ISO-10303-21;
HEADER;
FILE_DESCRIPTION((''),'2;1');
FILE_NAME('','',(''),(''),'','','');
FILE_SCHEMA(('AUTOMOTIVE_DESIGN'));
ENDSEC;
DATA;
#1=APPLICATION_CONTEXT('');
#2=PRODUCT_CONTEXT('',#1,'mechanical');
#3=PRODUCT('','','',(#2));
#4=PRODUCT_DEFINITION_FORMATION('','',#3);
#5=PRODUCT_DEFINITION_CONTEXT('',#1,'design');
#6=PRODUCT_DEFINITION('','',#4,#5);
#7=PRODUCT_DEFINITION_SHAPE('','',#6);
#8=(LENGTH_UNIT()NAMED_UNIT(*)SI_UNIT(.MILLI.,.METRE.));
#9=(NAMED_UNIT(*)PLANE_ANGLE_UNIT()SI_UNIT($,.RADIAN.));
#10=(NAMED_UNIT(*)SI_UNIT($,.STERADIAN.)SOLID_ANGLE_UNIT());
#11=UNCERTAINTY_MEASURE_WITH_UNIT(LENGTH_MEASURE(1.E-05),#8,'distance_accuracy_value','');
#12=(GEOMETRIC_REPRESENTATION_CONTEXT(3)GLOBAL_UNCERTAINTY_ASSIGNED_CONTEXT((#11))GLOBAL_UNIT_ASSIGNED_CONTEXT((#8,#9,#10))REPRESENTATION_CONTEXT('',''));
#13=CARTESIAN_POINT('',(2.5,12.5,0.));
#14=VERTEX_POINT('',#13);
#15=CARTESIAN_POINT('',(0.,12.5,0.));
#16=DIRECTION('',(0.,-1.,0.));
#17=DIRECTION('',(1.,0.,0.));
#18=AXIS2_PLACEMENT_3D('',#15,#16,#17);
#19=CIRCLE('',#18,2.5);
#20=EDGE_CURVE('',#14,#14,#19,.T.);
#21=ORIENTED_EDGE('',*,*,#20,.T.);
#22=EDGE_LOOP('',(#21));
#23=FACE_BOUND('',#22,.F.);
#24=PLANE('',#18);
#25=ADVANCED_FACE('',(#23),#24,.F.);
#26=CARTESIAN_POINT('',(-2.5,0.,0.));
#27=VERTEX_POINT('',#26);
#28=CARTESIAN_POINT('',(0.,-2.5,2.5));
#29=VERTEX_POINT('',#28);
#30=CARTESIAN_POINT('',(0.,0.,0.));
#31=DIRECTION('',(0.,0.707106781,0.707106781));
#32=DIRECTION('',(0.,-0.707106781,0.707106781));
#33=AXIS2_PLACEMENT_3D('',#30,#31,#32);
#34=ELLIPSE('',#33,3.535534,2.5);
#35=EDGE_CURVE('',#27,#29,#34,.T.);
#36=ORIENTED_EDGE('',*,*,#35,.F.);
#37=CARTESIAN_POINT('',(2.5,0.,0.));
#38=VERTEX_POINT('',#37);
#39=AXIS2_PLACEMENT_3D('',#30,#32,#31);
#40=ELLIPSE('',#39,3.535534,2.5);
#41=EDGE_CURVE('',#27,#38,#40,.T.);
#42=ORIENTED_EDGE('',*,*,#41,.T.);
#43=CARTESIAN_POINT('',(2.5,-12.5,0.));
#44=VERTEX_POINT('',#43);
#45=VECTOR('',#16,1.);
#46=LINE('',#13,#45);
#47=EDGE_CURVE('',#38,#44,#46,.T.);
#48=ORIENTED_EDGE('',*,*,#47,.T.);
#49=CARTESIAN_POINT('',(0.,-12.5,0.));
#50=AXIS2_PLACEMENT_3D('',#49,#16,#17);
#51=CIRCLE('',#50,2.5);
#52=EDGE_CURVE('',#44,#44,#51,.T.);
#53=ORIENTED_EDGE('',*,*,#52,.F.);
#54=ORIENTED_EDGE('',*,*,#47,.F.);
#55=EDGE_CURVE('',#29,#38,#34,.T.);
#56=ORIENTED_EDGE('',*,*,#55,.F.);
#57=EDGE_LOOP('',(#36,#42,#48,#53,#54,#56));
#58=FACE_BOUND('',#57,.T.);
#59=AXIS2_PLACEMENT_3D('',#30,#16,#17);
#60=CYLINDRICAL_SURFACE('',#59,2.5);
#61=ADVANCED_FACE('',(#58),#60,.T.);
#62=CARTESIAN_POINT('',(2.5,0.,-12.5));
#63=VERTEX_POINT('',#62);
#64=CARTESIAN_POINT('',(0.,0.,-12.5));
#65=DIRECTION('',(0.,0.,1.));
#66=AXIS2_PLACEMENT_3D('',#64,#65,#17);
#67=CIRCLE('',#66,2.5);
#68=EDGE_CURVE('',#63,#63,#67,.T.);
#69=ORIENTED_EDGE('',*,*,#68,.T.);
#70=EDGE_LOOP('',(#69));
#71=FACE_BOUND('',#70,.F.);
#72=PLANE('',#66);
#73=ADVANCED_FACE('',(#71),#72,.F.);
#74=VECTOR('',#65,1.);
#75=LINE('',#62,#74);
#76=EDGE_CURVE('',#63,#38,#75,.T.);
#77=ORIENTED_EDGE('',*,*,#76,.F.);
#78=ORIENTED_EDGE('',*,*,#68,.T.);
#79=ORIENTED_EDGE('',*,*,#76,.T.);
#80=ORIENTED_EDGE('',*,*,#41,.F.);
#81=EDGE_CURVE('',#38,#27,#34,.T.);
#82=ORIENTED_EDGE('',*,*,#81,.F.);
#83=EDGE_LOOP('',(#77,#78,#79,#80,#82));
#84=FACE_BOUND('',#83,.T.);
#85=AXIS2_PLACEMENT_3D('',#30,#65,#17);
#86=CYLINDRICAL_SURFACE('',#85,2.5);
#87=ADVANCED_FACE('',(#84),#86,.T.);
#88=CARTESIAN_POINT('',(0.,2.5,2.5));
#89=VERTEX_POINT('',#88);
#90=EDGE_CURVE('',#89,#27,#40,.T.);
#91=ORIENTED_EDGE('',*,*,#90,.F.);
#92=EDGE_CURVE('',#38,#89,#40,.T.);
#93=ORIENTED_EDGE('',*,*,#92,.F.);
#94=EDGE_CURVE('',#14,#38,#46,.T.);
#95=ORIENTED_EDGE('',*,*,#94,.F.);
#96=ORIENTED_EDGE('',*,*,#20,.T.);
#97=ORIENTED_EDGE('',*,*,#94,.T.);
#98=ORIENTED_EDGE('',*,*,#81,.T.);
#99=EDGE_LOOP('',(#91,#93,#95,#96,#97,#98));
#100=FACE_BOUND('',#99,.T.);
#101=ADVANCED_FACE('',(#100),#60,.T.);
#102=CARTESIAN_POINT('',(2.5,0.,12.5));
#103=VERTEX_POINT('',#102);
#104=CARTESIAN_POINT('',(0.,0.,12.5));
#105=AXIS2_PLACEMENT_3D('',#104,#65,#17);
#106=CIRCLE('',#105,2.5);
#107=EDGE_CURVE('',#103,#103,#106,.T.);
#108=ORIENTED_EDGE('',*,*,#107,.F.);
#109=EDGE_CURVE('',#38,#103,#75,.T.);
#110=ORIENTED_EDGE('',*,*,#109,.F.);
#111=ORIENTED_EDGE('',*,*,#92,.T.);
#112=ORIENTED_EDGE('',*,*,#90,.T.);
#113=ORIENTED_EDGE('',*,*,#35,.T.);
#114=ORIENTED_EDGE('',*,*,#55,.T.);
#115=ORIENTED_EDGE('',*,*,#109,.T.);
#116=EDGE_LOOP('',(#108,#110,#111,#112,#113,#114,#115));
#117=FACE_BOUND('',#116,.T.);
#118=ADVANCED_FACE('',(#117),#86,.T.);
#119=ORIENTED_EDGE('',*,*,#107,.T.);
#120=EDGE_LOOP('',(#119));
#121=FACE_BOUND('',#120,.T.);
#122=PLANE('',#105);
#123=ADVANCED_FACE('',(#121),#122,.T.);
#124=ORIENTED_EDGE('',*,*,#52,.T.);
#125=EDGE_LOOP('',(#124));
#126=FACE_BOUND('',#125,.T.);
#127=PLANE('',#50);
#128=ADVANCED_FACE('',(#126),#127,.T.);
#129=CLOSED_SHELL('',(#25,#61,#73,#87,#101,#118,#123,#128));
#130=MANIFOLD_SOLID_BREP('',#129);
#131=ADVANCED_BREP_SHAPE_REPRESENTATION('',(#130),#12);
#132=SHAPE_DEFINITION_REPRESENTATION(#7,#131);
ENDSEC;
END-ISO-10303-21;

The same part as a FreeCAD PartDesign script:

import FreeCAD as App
import Part
import Sketcher
from FreeCAD import Vector

doc = App.newDocument("Part")
body = doc.addObject("PartDesign::Body", "Body")

# Sketch on XY plane
sketch1 = doc.addObject("Sketcher::SketchObject", "Sketch")
body.addObject(sketch1)
sketch1.AttachmentSupport = (doc.XY_Plane, [""])
sketch1.MapMode = "FlatFace"
sketch1.addGeometry(Part.Circle(Vector(0, 0, 0), Vector(0, 0, 1), 2.5), False)
sketch1.addConstraint([
    Sketcher.Constraint("Coincident", 0, 3, -1, 1),
    Sketcher.Constraint("Diameter", 0, 5.0),
])
pad1 = doc.addObject("PartDesign::Pad", "Pad")
body.addObject(pad1)
pad1.Profile = sketch1
pad1.Length = 25
pad1.Midplane = True

# Sketch on XZ plane
sketch2 = doc.addObject("Sketcher::SketchObject", "Sketch001")
body.addObject(sketch2)
sketch2.AttachmentSupport = (doc.XZ_Plane, [""])
sketch2.MapMode = "FlatFace"
sketch2.addGeometry(Part.Circle(Vector(0, 0, 0), Vector(0, 0, 1), 2.5), False)
sketch2.addConstraint([
    Sketcher.Constraint("Coincident", 0, 3, -1, 1),
    Sketcher.Constraint("Diameter", 0, 5.0),
])
pad2 = doc.addObject("PartDesign::Pad", "Pad001")
body.addObject(pad2)
pad2.Profile = sketch2
pad2.Length = 25
pad2.Midplane = True

doc.recompute()
